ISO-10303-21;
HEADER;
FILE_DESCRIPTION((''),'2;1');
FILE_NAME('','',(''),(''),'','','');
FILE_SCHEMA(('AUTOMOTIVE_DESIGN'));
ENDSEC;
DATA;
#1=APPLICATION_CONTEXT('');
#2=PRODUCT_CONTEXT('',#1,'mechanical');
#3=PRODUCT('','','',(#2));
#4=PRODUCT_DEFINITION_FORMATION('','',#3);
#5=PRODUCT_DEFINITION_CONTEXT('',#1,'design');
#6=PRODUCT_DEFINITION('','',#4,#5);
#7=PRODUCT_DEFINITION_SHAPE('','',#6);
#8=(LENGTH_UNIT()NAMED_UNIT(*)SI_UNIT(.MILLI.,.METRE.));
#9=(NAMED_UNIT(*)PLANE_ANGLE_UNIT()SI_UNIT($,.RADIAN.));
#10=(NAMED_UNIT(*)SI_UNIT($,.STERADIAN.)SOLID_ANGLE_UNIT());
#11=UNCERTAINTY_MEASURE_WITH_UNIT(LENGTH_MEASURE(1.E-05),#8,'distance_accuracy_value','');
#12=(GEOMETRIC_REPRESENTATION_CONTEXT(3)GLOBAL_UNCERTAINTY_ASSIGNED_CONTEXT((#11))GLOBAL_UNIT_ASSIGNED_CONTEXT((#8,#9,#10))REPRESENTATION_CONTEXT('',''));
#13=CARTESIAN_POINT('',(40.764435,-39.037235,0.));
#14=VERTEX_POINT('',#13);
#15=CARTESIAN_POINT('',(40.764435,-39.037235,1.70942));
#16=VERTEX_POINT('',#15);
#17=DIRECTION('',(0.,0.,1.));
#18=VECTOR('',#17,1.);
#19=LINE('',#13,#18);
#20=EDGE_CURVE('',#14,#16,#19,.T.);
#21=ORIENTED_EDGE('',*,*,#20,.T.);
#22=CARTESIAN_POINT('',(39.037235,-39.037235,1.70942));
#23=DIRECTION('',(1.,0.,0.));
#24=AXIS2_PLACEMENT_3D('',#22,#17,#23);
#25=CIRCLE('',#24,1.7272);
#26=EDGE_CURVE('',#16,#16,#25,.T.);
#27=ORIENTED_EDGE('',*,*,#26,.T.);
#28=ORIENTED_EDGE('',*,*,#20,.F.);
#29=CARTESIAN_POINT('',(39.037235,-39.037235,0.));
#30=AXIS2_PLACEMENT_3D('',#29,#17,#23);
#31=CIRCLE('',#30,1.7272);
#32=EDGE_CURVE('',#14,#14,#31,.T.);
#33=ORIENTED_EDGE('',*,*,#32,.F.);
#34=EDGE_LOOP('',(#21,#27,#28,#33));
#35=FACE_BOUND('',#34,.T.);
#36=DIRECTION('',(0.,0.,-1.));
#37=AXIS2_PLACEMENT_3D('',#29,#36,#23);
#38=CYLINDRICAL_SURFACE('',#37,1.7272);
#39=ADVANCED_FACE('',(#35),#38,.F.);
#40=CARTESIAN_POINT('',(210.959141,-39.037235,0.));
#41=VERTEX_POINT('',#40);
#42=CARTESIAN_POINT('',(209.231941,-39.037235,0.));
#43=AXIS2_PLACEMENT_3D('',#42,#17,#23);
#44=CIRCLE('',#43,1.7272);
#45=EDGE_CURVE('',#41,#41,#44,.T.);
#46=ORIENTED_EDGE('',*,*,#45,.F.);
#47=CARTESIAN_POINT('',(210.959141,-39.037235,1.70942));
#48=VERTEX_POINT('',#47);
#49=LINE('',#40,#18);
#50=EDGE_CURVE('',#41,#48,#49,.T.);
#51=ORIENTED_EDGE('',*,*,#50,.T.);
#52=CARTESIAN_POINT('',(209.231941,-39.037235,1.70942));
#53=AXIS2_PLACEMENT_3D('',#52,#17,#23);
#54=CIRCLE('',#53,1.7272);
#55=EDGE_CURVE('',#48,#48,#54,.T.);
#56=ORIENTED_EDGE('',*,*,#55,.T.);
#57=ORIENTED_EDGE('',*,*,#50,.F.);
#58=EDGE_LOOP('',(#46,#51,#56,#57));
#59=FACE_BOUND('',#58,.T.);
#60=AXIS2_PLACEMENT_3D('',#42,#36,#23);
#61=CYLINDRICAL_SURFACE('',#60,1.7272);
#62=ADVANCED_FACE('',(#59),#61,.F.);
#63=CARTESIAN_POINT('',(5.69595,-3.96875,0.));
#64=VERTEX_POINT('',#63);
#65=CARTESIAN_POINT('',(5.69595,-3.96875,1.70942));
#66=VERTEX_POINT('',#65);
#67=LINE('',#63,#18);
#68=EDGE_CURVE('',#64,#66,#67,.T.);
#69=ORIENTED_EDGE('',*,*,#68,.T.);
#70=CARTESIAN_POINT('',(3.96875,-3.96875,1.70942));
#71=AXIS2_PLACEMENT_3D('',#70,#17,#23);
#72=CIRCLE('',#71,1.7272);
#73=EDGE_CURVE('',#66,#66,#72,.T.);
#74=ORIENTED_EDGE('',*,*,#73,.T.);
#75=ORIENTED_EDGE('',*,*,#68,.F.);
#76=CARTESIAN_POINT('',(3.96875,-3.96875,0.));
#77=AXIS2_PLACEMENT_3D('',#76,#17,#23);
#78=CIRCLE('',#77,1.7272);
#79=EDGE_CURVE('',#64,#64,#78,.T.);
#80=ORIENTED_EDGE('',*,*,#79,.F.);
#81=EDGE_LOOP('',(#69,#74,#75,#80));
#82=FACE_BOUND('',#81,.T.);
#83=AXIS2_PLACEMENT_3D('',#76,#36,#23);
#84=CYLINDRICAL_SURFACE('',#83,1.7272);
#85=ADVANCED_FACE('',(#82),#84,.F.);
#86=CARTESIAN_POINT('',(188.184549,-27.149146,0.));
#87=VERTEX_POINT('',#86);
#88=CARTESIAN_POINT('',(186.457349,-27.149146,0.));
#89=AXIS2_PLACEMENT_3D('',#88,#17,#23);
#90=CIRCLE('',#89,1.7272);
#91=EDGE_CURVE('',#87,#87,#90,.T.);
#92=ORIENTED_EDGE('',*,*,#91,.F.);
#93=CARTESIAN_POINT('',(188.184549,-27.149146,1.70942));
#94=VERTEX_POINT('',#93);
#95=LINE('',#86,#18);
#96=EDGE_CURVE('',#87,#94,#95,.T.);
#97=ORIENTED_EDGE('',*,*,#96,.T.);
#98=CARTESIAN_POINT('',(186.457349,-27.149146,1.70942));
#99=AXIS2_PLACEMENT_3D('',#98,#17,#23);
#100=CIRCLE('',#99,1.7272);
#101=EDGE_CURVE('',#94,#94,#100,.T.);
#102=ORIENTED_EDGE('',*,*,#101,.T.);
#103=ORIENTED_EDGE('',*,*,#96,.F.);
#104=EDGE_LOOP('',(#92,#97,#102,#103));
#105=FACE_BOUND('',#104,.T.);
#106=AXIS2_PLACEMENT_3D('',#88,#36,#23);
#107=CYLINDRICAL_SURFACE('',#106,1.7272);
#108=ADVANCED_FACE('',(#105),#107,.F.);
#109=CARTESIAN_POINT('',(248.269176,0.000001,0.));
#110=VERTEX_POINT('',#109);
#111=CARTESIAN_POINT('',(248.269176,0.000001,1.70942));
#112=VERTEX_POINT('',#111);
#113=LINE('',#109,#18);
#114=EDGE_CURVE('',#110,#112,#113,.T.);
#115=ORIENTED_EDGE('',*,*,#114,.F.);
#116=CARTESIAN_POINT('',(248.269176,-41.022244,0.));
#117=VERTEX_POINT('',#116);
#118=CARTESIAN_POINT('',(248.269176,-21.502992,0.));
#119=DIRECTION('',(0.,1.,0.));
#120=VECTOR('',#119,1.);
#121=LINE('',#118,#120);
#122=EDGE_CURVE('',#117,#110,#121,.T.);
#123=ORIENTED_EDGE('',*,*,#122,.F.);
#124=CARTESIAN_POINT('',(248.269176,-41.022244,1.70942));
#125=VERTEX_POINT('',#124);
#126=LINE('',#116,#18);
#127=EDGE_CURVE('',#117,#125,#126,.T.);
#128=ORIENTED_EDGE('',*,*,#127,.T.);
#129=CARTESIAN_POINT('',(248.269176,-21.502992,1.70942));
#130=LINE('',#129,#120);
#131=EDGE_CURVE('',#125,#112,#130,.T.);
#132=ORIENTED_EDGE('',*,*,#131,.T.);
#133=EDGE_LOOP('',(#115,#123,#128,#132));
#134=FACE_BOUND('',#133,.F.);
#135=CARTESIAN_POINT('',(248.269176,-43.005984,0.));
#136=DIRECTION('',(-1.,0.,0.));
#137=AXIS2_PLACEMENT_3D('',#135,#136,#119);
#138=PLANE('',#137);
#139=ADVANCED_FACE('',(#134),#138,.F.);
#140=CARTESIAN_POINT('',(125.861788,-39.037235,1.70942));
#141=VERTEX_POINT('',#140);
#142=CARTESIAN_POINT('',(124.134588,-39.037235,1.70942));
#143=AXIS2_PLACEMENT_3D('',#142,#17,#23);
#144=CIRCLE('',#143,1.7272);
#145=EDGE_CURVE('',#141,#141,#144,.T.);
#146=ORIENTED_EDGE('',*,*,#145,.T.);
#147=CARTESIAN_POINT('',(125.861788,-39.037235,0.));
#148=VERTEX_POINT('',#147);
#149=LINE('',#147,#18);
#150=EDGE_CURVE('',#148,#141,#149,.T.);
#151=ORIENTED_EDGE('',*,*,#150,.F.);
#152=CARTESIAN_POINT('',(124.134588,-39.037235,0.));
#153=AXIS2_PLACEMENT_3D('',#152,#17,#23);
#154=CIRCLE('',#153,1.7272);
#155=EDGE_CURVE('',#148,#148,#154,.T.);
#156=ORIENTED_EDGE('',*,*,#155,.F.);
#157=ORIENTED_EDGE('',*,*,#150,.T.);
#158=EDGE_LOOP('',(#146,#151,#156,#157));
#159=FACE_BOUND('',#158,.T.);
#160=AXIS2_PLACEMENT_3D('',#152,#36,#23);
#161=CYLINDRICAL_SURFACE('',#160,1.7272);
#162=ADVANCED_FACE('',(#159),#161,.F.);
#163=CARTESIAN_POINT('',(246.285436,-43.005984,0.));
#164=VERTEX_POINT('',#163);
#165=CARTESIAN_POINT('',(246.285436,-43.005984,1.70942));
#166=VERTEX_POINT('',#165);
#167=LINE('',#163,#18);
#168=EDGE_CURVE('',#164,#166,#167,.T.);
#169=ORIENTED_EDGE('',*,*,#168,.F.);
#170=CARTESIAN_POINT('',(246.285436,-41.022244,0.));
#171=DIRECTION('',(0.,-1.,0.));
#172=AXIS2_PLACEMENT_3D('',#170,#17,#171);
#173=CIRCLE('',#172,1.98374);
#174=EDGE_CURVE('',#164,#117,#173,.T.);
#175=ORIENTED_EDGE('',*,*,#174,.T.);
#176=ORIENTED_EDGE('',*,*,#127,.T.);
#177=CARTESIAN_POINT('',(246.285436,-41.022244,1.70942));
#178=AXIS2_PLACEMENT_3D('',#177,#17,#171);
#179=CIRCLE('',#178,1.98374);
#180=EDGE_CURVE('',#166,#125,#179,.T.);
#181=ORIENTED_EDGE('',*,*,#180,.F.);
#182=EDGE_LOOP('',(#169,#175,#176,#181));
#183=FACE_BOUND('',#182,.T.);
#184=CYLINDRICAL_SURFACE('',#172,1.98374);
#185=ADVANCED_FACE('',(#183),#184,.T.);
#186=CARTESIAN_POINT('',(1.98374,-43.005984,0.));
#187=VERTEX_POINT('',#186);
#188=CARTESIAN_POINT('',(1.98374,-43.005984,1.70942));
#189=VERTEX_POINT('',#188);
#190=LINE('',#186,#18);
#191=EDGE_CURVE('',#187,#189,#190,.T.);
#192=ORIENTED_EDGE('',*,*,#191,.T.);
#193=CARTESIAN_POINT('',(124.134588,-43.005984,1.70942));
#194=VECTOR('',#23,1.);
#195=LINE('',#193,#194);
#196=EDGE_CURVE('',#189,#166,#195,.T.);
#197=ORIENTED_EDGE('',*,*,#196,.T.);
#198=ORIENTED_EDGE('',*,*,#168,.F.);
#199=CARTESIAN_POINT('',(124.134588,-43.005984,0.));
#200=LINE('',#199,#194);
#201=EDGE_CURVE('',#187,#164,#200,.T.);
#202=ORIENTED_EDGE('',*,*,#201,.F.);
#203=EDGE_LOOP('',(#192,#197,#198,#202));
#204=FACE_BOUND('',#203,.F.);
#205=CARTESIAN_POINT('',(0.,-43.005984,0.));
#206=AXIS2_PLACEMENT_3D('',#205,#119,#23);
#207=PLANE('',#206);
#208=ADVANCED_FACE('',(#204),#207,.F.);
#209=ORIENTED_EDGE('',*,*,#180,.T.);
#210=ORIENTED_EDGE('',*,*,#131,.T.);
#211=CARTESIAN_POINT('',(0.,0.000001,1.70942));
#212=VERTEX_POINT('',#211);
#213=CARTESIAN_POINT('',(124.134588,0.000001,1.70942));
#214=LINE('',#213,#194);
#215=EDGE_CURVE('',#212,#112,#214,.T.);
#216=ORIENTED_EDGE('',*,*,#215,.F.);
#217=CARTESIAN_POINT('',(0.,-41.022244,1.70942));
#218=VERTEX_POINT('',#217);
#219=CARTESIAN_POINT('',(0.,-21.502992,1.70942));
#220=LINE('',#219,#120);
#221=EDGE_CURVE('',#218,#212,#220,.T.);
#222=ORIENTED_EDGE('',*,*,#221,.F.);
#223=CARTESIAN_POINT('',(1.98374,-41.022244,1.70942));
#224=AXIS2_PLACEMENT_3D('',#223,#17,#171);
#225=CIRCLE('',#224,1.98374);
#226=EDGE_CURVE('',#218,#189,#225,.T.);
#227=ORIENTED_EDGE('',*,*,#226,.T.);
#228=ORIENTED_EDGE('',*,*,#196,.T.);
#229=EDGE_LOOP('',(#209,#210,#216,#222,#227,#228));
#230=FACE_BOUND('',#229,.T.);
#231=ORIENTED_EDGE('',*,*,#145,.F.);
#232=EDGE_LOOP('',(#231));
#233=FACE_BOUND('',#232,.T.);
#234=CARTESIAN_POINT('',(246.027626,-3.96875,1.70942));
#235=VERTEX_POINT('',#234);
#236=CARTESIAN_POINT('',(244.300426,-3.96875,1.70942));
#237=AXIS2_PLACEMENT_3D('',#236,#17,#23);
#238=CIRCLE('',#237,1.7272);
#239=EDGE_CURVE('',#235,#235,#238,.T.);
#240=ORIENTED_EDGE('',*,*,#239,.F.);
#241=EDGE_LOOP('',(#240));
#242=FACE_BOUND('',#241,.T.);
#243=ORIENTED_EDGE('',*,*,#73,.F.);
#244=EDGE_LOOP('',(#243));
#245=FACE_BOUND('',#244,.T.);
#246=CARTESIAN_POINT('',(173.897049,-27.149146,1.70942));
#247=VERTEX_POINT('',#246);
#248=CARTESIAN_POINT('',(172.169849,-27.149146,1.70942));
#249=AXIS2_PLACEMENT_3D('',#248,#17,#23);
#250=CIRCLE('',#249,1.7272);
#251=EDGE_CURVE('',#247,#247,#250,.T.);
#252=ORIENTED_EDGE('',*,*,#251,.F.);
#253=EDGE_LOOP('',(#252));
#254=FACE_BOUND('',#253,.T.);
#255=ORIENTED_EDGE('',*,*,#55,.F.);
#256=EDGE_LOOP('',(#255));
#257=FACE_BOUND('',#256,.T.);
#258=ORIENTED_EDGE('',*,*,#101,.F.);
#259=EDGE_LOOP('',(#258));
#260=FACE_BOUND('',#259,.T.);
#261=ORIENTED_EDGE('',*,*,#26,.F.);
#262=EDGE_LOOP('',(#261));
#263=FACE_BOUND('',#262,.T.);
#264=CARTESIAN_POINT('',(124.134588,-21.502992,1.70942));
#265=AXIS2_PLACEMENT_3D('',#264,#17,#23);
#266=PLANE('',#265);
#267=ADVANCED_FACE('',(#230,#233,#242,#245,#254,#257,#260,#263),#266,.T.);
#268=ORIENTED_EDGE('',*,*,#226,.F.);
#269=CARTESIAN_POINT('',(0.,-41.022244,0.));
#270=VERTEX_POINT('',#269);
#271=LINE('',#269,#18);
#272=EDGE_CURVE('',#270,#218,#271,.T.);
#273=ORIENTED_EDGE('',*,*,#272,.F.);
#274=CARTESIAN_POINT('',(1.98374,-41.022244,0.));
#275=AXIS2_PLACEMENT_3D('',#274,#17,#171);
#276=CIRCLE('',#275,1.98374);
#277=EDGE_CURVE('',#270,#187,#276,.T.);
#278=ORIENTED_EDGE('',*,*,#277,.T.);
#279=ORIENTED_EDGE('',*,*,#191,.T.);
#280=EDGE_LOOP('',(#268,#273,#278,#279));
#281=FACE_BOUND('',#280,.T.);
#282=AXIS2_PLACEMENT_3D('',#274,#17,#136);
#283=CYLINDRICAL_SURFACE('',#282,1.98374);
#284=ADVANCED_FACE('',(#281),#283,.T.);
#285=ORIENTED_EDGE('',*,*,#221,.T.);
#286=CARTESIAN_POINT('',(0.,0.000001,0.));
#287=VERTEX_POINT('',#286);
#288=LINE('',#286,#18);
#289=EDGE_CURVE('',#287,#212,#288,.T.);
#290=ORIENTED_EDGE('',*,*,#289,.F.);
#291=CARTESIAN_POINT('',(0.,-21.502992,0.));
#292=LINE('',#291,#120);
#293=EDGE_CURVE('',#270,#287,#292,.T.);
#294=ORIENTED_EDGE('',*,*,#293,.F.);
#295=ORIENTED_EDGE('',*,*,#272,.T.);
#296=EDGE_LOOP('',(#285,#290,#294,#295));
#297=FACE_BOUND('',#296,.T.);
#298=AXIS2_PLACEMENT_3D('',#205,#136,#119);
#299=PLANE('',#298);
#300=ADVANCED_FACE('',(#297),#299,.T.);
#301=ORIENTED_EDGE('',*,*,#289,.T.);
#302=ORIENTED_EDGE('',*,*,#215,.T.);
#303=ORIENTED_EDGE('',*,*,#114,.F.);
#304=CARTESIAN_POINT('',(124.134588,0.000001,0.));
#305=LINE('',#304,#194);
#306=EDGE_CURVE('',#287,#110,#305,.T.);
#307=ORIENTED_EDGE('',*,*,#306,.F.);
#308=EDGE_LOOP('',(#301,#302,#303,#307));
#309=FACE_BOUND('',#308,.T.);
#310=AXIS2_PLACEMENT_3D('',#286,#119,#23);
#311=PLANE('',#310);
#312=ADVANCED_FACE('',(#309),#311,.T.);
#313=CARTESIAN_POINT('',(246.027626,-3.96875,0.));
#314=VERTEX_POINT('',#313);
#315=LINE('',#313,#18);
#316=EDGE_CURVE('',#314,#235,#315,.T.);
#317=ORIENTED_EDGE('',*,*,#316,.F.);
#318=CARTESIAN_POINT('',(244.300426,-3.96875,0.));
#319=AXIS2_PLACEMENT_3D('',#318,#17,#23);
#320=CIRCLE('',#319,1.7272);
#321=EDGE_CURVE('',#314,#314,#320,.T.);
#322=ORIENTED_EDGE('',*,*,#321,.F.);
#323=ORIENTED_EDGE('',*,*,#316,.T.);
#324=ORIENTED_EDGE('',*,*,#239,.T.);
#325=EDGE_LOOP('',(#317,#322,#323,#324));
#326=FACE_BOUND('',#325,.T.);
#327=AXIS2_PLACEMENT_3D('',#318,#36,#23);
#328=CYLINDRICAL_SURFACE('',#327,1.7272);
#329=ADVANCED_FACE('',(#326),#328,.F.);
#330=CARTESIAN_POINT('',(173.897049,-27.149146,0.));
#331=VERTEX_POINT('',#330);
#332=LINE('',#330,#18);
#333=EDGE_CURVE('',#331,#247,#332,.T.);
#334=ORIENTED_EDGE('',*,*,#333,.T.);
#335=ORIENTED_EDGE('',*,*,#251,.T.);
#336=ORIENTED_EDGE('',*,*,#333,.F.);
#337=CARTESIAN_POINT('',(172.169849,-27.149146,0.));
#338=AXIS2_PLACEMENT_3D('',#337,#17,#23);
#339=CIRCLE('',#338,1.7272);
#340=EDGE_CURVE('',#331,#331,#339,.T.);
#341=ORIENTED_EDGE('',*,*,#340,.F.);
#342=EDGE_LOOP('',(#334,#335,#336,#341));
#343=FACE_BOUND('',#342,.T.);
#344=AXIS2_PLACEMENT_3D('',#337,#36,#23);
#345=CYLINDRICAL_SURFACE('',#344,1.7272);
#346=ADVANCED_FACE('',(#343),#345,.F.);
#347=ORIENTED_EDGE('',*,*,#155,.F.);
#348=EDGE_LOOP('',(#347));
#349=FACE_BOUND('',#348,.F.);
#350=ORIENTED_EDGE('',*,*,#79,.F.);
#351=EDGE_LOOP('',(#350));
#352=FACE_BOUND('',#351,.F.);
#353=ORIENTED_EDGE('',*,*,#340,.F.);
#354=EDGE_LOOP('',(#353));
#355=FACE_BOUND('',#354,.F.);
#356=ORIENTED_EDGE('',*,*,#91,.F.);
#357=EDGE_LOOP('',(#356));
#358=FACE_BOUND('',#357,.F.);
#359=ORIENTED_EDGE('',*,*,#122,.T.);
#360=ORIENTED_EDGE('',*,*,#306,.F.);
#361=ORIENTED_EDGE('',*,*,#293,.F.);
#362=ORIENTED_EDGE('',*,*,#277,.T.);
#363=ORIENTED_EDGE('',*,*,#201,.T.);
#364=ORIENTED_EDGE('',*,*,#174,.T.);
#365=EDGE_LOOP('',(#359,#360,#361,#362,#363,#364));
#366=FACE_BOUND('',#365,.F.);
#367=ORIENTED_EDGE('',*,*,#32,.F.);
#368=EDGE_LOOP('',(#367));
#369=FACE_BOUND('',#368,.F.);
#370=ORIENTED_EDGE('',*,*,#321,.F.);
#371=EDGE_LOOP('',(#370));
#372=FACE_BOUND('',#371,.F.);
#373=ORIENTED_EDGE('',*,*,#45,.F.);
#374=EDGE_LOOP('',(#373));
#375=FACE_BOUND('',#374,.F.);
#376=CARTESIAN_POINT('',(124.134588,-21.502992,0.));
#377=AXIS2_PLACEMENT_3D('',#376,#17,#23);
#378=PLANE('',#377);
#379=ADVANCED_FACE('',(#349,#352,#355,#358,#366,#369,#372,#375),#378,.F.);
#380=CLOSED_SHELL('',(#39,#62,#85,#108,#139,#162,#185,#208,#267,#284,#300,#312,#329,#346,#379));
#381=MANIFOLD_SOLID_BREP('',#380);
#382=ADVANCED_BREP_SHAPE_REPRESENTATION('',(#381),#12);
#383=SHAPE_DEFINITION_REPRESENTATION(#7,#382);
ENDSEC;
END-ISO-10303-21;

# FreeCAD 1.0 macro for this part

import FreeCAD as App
import Part
import Sketcher

V = App.Vector
Q = App.Units.Quantity


def edges_at(feature, points):
    """Names of the edges that pass closest to the given points."""
    edges = feature.Shape.Edges
    near = lambda p: min(range(len(edges)), key=lambda i: edges[i].distToShape(Part.Vertex(*p))[0])
    return sorted({f"Edge{near(p) + 1}" for p in points})

doc = App.newDocument("Part")
body = doc.addObject("PartDesign::Body", "Body")

# Sketch on XY plane
sketch1 = doc.addObject("Sketcher::SketchObject", "Sketch")
body.addObject(sketch1)
sketch1.AttachmentSupport = (doc.XY_Plane, [""])
sketch1.MapMode = "FlatFace"
sketch1.addGeometry([
    Part.LineSegment(V(0, 0, 0), V(0, -43, 0)),  # 0
    Part.LineSegment(V(0, -43, 0), V(248.3, -43, 0)),  # 1
    Part.LineSegment(V(248.3, -43, 0), V(248.3, 0, 0)),  # 2
    Part.LineSegment(V(248.3, 0, 0), V(0, 0, 0)),  # 3
    Part.Circle(V(39, -39, 0), V(0, 0, 1), 1.7),  # 4
    Part.Circle(V(124.1, -39, 0), V(0, 0, 1), 1.7),  # 5
    Part.Circle(V(209.2, -39, 0), V(0, 0, 1), 1.7),  # 6
    Part.Circle(V(172.2, -27.1, 0), V(0, 0, 1), 1.7),  # 7
    Part.Circle(V(186.5, -27.1, 0), V(0, 0, 1), 1.7),  # 8
    Part.Circle(V(4, -4, 0), V(0, 0, 1), 1.7),  # 9
    Part.Circle(V(244.3, -4, 0), V(0, 0, 1), 1.7),  # 10
], False)
sketch1.addConstraint([
    Sketcher.Constraint("Coincident", 0, 2, 1, 1),
    Sketcher.Constraint("Coincident", 1, 2, 2, 1),
    Sketcher.Constraint("Coincident", 2, 2, 3, 1),
    Sketcher.Constraint("Coincident", 3, 2, 0, 1),
    Sketcher.Constraint("Vertical", 0),
    Sketcher.Constraint("Horizontal", 1),
    Sketcher.Constraint("Vertical", 2),
    Sketcher.Constraint("Horizontal", 3),
    Sketcher.Constraint("Coincident", 3, 2, -1, 1),
    Sketcher.Constraint("Equal", 4, 5),
    Sketcher.Constraint("Equal", 5, 6),
    Sketcher.Constraint("Equal", 6, 7),
    Sketcher.Constraint("Equal", 7, 8),
    Sketcher.Constraint("Equal", 8, 9),
    Sketcher.Constraint("Equal", 9, 10),
    Sketcher.Constraint("Horizontal", 4, 3, 5, 3),
    Sketcher.Constraint("Horizontal", 5, 3, 6, 3),
    Sketcher.Constraint("Horizontal", 7, 3, 8, 3),
    Sketcher.Constraint("Horizontal", 9, 3, 10, 3),
    Sketcher.Constraint("Diameter", 4, Q("0.136 in")),
    Sketcher.Constraint("DistanceX", -1, 1, 9, 3, Q("0.15625 in")),
    Sketcher.Constraint("DistanceY", 9, 3, -1, 1, Q("0.15625 in")),
    Sketcher.Constraint("DistanceX", 7, 3, 8, 3, Q("0.5625 in")),
    Sketcher.Constraint("DistanceY", 0, 2, 4, 3, Q("0.15625 in")),
    Sketcher.Constraint("DistanceX", 10, 3, 1, 2, Q("0.15625 in")),
    Sketcher.Constraint("DistanceX", 9, 3, 7, 3, 168.201099),
    Sketcher.Constraint("DistanceX", 1, 1, 1, 2, 248.269176),
    Sketcher.Constraint("DistanceY", 0, 2, 0, 1, 43.005985),
    Sketcher.Constraint("DistanceX", -1, 1, 6, 3, 209.231941),
    Sketcher.Constraint("DistanceY", 6, 3, 7, 3, 11.888089),
    Sketcher.Constraint("DistanceX", 5, 3, 7, 3, 48.035261),
    Sketcher.Constraint("DistanceX", 4, 3, 10, 3, 205.263191),
])
pad1 = doc.addObject("PartDesign::Pad", "Pad")
body.addObject(pad1)
pad1.Profile = sketch1
pad1.Length = Q("0.0673 in")
doc.recompute()

fillet = doc.addObject("PartDesign::Fillet", "Fillet")
body.addObject(fillet)
fillet.Base = (pad1, edges_at(pad1, [(0, -43.006, 0.855), (248.269, -43.006, 0.855)]))
fillet.Radius = Q("0.0781 in")

doc.recompute()
